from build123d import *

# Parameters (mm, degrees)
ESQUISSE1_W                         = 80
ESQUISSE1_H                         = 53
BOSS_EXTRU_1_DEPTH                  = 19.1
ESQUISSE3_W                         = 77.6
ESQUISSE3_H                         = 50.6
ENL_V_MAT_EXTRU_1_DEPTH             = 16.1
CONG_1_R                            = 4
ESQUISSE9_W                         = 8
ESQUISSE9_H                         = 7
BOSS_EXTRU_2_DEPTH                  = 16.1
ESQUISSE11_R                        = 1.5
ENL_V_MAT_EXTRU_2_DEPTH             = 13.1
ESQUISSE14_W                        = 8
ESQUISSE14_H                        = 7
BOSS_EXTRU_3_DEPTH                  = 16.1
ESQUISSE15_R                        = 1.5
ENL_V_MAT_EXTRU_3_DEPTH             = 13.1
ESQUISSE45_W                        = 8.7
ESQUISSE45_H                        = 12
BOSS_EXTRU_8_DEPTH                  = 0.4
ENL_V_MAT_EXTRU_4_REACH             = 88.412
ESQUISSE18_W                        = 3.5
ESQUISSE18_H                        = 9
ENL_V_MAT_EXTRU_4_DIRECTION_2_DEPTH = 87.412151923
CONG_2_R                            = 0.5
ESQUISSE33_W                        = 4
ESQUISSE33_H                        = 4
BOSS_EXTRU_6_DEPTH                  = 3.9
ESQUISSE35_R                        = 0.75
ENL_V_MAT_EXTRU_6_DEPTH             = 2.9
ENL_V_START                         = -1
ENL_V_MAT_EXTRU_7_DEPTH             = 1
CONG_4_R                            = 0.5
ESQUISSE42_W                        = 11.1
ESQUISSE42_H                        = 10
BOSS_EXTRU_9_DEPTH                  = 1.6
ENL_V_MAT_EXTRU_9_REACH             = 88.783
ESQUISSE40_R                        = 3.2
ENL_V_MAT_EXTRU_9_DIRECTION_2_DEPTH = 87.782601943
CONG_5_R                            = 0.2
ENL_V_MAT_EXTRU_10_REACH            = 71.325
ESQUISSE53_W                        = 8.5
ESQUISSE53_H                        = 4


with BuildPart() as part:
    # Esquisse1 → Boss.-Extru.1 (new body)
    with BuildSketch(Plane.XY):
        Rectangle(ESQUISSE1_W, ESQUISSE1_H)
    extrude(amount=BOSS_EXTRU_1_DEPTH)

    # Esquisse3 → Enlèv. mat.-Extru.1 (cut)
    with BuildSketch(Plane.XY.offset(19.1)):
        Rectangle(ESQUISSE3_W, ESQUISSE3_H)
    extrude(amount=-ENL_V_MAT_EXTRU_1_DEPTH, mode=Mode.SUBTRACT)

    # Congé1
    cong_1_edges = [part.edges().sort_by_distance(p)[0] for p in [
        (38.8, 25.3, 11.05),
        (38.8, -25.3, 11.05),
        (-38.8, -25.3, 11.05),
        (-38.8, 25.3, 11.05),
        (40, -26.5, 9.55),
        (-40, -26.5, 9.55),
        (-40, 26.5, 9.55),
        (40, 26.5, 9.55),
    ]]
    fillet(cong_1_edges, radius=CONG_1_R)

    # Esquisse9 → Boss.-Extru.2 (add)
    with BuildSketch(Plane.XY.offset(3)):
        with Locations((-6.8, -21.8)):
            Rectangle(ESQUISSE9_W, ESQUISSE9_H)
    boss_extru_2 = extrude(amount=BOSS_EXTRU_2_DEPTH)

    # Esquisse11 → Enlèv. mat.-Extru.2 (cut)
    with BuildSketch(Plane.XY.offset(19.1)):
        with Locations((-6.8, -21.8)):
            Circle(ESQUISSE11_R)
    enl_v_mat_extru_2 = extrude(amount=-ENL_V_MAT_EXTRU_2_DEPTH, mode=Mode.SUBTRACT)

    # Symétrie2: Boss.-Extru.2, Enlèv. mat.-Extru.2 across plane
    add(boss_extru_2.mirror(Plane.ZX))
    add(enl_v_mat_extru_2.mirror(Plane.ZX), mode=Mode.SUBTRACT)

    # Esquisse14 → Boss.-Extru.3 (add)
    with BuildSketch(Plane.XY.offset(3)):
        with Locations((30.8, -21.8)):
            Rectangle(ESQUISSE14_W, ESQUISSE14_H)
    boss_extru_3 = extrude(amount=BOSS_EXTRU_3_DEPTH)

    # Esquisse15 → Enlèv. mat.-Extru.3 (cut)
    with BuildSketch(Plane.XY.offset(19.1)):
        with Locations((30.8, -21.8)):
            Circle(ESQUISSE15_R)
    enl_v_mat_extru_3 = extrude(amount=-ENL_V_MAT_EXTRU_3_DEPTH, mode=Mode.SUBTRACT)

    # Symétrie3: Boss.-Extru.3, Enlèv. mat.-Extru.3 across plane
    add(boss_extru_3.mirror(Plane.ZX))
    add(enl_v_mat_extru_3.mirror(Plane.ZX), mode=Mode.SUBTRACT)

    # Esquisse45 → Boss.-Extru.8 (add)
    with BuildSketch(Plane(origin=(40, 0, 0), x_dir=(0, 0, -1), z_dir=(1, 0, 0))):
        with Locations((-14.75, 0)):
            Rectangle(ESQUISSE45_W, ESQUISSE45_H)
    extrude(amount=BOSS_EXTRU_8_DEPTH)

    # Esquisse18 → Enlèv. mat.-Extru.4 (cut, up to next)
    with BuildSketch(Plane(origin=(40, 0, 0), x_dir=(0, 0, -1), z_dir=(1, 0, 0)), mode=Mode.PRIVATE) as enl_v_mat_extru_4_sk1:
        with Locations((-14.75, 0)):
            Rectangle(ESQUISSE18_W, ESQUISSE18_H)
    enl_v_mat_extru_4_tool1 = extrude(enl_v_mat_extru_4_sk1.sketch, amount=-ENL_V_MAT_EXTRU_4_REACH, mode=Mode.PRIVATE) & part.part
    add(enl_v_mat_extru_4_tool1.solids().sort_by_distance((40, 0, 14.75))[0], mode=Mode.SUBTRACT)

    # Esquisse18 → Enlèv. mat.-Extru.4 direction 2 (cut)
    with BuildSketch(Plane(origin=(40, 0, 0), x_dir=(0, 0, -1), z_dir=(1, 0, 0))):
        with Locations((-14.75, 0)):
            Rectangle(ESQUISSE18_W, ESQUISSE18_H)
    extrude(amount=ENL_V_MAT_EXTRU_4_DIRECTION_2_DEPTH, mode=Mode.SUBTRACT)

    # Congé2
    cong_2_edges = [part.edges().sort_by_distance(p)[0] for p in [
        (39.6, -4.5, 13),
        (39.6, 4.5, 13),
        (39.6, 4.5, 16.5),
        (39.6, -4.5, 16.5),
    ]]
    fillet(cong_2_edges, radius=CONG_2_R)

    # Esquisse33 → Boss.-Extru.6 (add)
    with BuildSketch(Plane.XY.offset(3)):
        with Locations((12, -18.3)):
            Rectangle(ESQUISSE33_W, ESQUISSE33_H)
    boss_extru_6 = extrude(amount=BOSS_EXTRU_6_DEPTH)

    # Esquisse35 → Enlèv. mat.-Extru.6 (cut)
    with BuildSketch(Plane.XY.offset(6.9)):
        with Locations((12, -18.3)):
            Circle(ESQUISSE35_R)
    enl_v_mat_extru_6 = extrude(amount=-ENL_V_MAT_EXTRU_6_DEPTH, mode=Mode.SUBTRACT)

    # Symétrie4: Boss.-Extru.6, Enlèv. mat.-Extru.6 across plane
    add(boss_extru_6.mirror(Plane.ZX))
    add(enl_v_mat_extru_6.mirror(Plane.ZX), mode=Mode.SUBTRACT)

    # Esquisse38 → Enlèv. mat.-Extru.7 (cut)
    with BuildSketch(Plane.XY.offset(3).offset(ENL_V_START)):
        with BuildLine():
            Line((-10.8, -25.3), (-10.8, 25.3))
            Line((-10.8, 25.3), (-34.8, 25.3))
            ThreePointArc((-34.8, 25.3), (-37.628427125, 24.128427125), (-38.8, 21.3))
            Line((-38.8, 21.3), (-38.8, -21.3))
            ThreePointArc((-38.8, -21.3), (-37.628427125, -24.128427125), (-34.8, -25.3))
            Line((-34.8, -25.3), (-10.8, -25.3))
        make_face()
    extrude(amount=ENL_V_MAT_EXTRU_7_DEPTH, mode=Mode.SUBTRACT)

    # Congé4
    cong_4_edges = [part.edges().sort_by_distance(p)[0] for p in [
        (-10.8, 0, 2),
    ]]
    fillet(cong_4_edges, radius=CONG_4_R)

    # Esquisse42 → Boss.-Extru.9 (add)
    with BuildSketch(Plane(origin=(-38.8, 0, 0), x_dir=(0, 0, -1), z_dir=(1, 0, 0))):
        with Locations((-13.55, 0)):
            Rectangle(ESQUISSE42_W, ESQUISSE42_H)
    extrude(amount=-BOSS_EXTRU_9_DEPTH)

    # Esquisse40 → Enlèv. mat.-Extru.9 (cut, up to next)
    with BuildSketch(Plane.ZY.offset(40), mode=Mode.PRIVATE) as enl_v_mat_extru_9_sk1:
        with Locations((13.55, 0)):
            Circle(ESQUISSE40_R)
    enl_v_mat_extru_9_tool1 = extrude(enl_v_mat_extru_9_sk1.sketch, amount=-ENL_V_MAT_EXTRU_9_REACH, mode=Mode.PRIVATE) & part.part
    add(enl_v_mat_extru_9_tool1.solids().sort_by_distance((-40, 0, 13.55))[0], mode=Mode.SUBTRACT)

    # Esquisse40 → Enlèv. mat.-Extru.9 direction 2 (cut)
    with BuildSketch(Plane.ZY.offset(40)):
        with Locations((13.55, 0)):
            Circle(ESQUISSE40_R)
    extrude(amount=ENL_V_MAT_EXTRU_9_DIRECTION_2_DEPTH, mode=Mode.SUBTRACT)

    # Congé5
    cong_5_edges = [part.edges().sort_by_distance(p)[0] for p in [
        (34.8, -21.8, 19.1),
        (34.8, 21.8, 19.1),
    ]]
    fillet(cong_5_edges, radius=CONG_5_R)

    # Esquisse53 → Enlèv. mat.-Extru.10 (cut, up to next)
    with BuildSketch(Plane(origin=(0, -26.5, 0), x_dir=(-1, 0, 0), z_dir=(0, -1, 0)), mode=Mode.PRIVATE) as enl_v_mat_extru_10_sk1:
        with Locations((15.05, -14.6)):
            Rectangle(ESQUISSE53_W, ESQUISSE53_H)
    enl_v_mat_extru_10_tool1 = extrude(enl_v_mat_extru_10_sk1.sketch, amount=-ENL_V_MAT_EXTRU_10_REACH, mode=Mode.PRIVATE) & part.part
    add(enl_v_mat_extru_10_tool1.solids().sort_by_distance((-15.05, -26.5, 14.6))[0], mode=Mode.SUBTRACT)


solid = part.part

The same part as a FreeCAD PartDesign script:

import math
import FreeCAD as App
import Part
import Sketcher

V = App.Vector


def edges_at(feature, points):
    """Names of the edges that pass closest to the given points."""
    edges = feature.Shape.Edges
    near = lambda p: min(range(len(edges)), key=lambda i: edges[i].distToShape(Part.Vertex(*p))[0])
    return sorted({f"Edge{near(p) + 1}" for p in points})

doc = App.newDocument("Part")
body = doc.addObject("PartDesign::Body", "Body")

sketch1 = doc.addObject("Sketcher::SketchObject", "Sketch")
body.addObject(sketch1)
sketch1.AttachmentSupport = (doc.XY_Plane, [""])
sketch1.MapMode = "FlatFace"
sketch1.addGeometry([
    Part.LineSegment(V(-40, 26.5, 0), V(-40, -26.5, 0)),
    Part.LineSegment(V(-40, -26.5, 0), V(40, -26.5, 0)),
    Part.LineSegment(V(40, -26.5, 0), V(40, 26.5, 0)),
    Part.LineSegment(V(40, 26.5, 0), V(-40, 26.5, 0)),
], False)
sketch1.addConstraint([
    Sketcher.Constraint("Coincident", 0, 2, 1, 1),
    Sketcher.Constraint("Coincident", 1, 2, 2, 1),
    Sketcher.Constraint("Coincident", 2, 2, 3, 1),
    Sketcher.Constraint("Coincident", 3, 2, 0, 1),
    Sketcher.Constraint("Vertical", 0),
    Sketcher.Constraint("Horizontal", 1),
    Sketcher.Constraint("Vertical", 2),
    Sketcher.Constraint("Horizontal", 3),
    Sketcher.Constraint("Symmetric", 0, 2, 2, 2, -1, 1),
    Sketcher.Constraint("DistanceX", 1, 1, 1, 2, 80.0),
    Sketcher.Constraint("DistanceY", 0, 2, 0, 1, 53.0),
])
pad1 = doc.addObject("PartDesign::Pad", "Pad")
body.addObject(pad1)
pad1.Profile = sketch1
pad1.Length = 19.1

sketch2 = doc.addObject("Sketcher::SketchObject", "Sketch001")
body.addObject(sketch2)
sketch2.AttachmentSupport = (doc.XY_Plane, [""])
sketch2.MapMode = "FlatFace"
sketch2.AttachmentOffset = App.Placement(V(0, 0, 19.1), App.Rotation())
sketch2.addGeometry([
    Part.LineSegment(V(-38.8, 25.3, 0), V(-38.8, -25.3, 0)),
    Part.LineSegment(V(-38.8, -25.3, 0), V(38.8, -25.3, 0)),
    Part.LineSegment(V(38.8, -25.3, 0), V(38.8, 25.3, 0)),
    Part.LineSegment(V(38.8, 25.3, 0), V(-38.8, 25.3, 0)),
], False)
sketch2.addConstraint([
    Sketcher.Constraint("Coincident", 0, 2, 1, 1),
    Sketcher.Constraint("Coincident", 1, 2, 2, 1),
    Sketcher.Constraint("Coincident", 2, 2, 3, 1),
    Sketcher.Constraint("Coincident", 3, 2, 0, 1),
    Sketcher.Constraint("Vertical", 0),
    Sketcher.Constraint("Horizontal", 1),
    Sketcher.Constraint("Vertical", 2),
    Sketcher.Constraint("Horizontal", 3),
    Sketcher.Constraint("Symmetric", 0, 2, 2, 2, -1, 1),
    Sketcher.Constraint("DistanceX", 1, 1, 1, 2, 77.6),
    Sketcher.Constraint("DistanceY", 0, 2, 0, 1, 50.6),
])
pocket1 = doc.addObject("PartDesign::Pocket", "Pocket")
body.addObject(pocket1)
pocket1.Profile = sketch2
pocket1.Length = 16.1
doc.recompute()

fillet = doc.addObject("PartDesign::Fillet", "Fillet")
body.addObject(fillet)
fillet.Base = (pocket1, edges_at(pocket1, [
    (38.8, 25.3, 11.05),
    (38.8, -25.3, 11.05),
    (-38.8, -25.3, 11.05),
    (-38.8, 25.3, 11.05),
    (40, -26.5, 9.55),
    (-40, -26.5, 9.55),
    (-40, 26.5, 9.55),
    (40, 26.5, 9.55),
]))
fillet.Radius = 4

sketch3 = doc.addObject("Sketcher::SketchObject", "Sketch002")
body.addObject(sketch3)
sketch3.AttachmentSupport = (doc.XY_Plane, [""])
sketch3.MapMode = "FlatFace"
sketch3.AttachmentOffset = App.Placement(V(0, 0, 3), App.Rotation())
sketch3.addGeometry([
    Part.LineSegment(V(-10.8, -18.3, 0), V(-10.8, -25.3, 0)),
    Part.LineSegment(V(-10.8, -25.3, 0), V(-2.8, -25.3, 0)),
    Part.LineSegment(V(-2.8, -25.3, 0), V(-2.8, -18.3, 0)),
    Part.LineSegment(V(-2.8, -18.3, 0), V(-10.8, -18.3, 0)),
], False)
sketch3.addConstraint([
    Sketcher.Constraint("Coincident", 0, 2, 1, 1),
    Sketcher.Constraint("Coincident", 1, 2, 2, 1),
    Sketcher.Constraint("Coincident", 2, 2, 3, 1),
    Sketcher.Constraint("Coincident", 3, 2, 0, 1),
    Sketcher.Constraint("Vertical", 0),
    Sketcher.Constraint("Horizontal", 1),
    Sketcher.Constraint("Vertical", 2),
    Sketcher.Constraint("Horizontal", 3),
    Sketcher.Constraint("DistanceX", 1, 1, 1, 2, 8.0),
    Sketcher.Constraint("DistanceY", 0, 2, 0, 1, 7.0),
    Sketcher.Constraint("DistanceX", 0, 2, -1, 1, 10.8),
    Sketcher.Constraint("DistanceY", 0, 2, -1, 1, 25.3),
])
pad2 = doc.addObject("PartDesign::Pad", "Pad001")
body.addObject(pad2)
pad2.Profile = sketch3
pad2.Length = 16.1

sketch4 = doc.addObject("Sketcher::SketchObject", "Sketch003")
body.addObject(sketch4)
sketch4.AttachmentSupport = (doc.XY_Plane, [""])
sketch4.MapMode = "FlatFace"
sketch4.AttachmentOffset = App.Placement(V(0, 0, 19.1), App.Rotation())
sketch4.addGeometry(Part.Circle(V(-6.8, -21.8, 0), V(0, 0, 1), 1.5), False)
sketch4.addConstraint([
    Sketcher.Constraint("Diameter", 0, 3.0),
    Sketcher.Constraint("DistanceX", 0, 3, -1, 1, 6.8),
    Sketcher.Constraint("DistanceY", 0, 3, -1, 1, 21.8),
])
pocket2 = doc.addObject("PartDesign::Pocket", "Pocket001")
body.addObject(pocket2)
pocket2.Profile = sketch4
pocket2.Length = 13.1
doc.recompute()

mirrored = doc.addObject("PartDesign::Mirrored", "Mirrored")
body.addObject(mirrored)
mirrored.Originals = [pad2, pocket2]
mirrored.MirrorPlane = (doc.XZ_Plane, [""])
body.Tip = mirrored

sketch5 = doc.addObject("Sketcher::SketchObject", "Sketch004")
body.addObject(sketch5)
sketch5.AttachmentSupport = (doc.XY_Plane, [""])
sketch5.MapMode = "FlatFace"
sketch5.AttachmentOffset = App.Placement(V(0, 0, 3), App.Rotation())
sketch5.addGeometry([
    Part.LineSegment(V(26.8, -18.3, 0), V(26.8, -25.3, 0)),
    Part.LineSegment(V(26.8, -25.3, 0), V(34.8, -25.3, 0)),
    Part.LineSegment(V(34.8, -25.3, 0), V(34.8, -18.3, 0)),
    Part.LineSegment(V(34.8, -18.3, 0), V(26.8, -18.3, 0)),
], False)
sketch5.addConstraint([
    Sketcher.Constraint("Coincident", 0, 2, 1, 1),
    Sketcher.Constraint("Coincident", 1, 2, 2, 1),
    Sketcher.Constraint("Coincident", 2, 2, 3, 1),
    Sketcher.Constraint("Coincident", 3, 2, 0, 1),
    Sketcher.Constraint("Vertical", 0),
    Sketcher.Constraint("Horizontal", 1),
    Sketcher.Constraint("Vertical", 2),
    Sketcher.Constraint("Horizontal", 3),
    Sketcher.Constraint("DistanceX", 1, 1, 1, 2, 8.0),
    Sketcher.Constraint("DistanceY", 0, 2, 0, 1, 7.0),
    Sketcher.Constraint("DistanceX", -1, 1, 0, 2, 26.8),
    Sketcher.Constraint("DistanceY", 0, 2, -1, 1, 25.3),
])
pad3 = doc.addObject("PartDesign::Pad", "Pad002")
body.addObject(pad3)
pad3.Profile = sketch5
pad3.Length = 16.1

sketch6 = doc.addObject("Sketcher::SketchObject", "Sketch005")
body.addObject(sketch6)
sketch6.AttachmentSupport = (doc.XY_Plane, [""])
sketch6.MapMode = "FlatFace"
sketch6.AttachmentOffset = App.Placement(V(0, 0, 19.1), App.Rotation())
sketch6.addGeometry(Part.Circle(V(30.8, -21.8, 0), V(0, 0, 1), 1.5), False)
sketch6.addConstraint([
    Sketcher.Constraint("Diameter", 0, 3.0),
    Sketcher.Constraint("DistanceX", -1, 1, 0, 3, 30.8),
    Sketcher.Constraint("DistanceY", 0, 3, -1, 1, 21.8),
])
pocket3 = doc.addObject("PartDesign::Pocket", "Pocket002")
body.addObject(pocket3)
pocket3.Profile = sketch6
pocket3.Length = 13.1
doc.recompute()

mirrored2 = doc.addObject("PartDesign::Mirrored", "Mirrored001")
body.addObject(mirrored2)
mirrored2.Originals = [pad3, pocket3]
mirrored2.MirrorPlane = (doc.XZ_Plane, [""])
body.Tip = mirrored2

sketch7 = doc.addObject("Sketcher::SketchObject", "Sketch006")
body.addObject(sketch7)
sketch7.AttachmentSupport = (doc.YZ_Plane, [""])
sketch7.MapMode = "FlatFace"
sketch7.AttachmentOffset = App.Placement(V(0, 0, 40), App.Rotation())
sketch7.addGeometry([
    Part.LineSegment(V(6, 19.1, 0), V(-6, 19.1, 0)),
    Part.LineSegment(V(-6, 19.1, 0), V(-6, 10.4, 0)),
    Part.LineSegment(V(-6, 10.4, 0), V(6, 10.4, 0)),
    Part.LineSegment(V(6, 10.4, 0), V(6, 19.1, 0)),
], False)
sketch7.addConstraint([
    Sketcher.Constraint("Coincident", 0, 2, 1, 1),
    Sketcher.Constraint("Coincident", 1, 2, 2, 1),
    Sketcher.Constraint("Coincident", 2, 2, 3, 1),
    Sketcher.Constraint("Coincident", 3, 2, 0, 1),
    Sketcher.Constraint("Horizontal", 0),
    Sketcher.Constraint("Vertical", 1),
    Sketcher.Constraint("Horizontal", 2),
    Sketcher.Constraint("Vertical", 3),
    Sketcher.Constraint("DistanceX", 0, 2, 0, 1, 12.0),
    Sketcher.Constraint("DistanceY", 1, 2, 1, 1, 8.7),
    Sketcher.Constraint("DistanceX", 0, 2, -1, 1, 6.0),
    Sketcher.Constraint("DistanceY", -1, 1, 0, 2, 19.1),
])
pad4 = doc.addObject("PartDesign::Pad", "Pad003")
body.addObject(pad4)
pad4.Profile = sketch7
pad4.Length = 0.4

sketch8 = doc.addObject("Sketcher::SketchObject", "Sketch007")
body.addObject(sketch8)
sketch8.AttachmentSupport = (doc.YZ_Plane, [""])
sketch8.MapMode = "FlatFace"
sketch8.AttachmentOffset = App.Placement(V(0, 0, 40), App.Rotation())
sketch8.addGeometry([
    Part.LineSegment(V(4.5, 16.5, 0), V(-4.5, 16.5, 0)),
    Part.LineSegment(V(-4.5, 16.5, 0), V(-4.5, 13, 0)),
    Part.LineSegment(V(-4.5, 13, 0), V(4.5, 13, 0)),
    Part.LineSegment(V(4.5, 13, 0), V(4.5, 16.5, 0)),
], False)
sketch8.addConstraint([
    Sketcher.Constraint("Coincident", 0, 2, 1, 1),
    Sketcher.Constraint("Coincident", 1, 2, 2, 1),
    Sketcher.Constraint("Coincident", 2, 2, 3, 1),
    Sketcher.Constraint("Coincident", 3, 2, 0, 1),
    Sketcher.Constraint("Horizontal", 0),
    Sketcher.Constraint("Vertical", 1),
    Sketcher.Constraint("Horizontal", 2),
    Sketcher.Constraint("Vertical", 3),
    Sketcher.Constraint("DistanceX", 0, 2, 0, 1, 9.0),
    Sketcher.Constraint("DistanceY", 1, 2, 1, 1, 3.5),
    Sketcher.Constraint("DistanceY", -1, 1, 1, 2, 13.0),
    Sketcher.Constraint("DistanceX", 0, 2, -1, 1, 4.5),
])
pocket4 = doc.addObject("PartDesign::Pocket", "Pocket003")
body.addObject(pocket4)
pocket4.Profile = sketch8
pocket4.Type = "UpToFirst"

sketch9 = doc.addObject("Sketcher::SketchObject", "Sketch008")
body.addObject(sketch9)
sketch9.AttachmentSupport = (doc.YZ_Plane, [""])
sketch9.MapMode = "FlatFace"
sketch9.AttachmentOffset = App.Placement(V(0, 0, 40), App.Rotation())
sketch9.addGeometry([
    Part.LineSegment(V(4.5, 16.5, 0), V(-4.5, 16.5, 0)),
    Part.LineSegment(V(-4.5, 16.5, 0), V(-4.5, 13, 0)),
    Part.LineSegment(V(-4.5, 13, 0), V(4.5, 13, 0)),
    Part.LineSegment(V(4.5, 13, 0), V(4.5, 16.5, 0)),
], False)
sketch9.addConstraint([
    Sketcher.Constraint("Coincident", 0, 2, 1, 1),
    Sketcher.Constraint("Coincident", 1, 2, 2, 1),
    Sketcher.Constraint("Coincident", 2, 2, 3, 1),
    Sketcher.Constraint("Coincident", 3, 2, 0, 1),
    Sketcher.Constraint("Horizontal", 0),
    Sketcher.Constraint("Vertical", 1),
    Sketcher.Constraint("Horizontal", 2),
    Sketcher.Constraint("Vertical", 3),
    Sketcher.Constraint("DistanceX", 0, 2, 0, 1, 9.0),
    Sketcher.Constraint("DistanceY", 1, 2, 1, 1, 3.5),
    Sketcher.Constraint("DistanceY", -1, 1, 1, 2, 13.0),
    Sketcher.Constraint("DistanceX", 0, 2, -1, 1, 4.5),
])
pocket5 = doc.addObject("PartDesign::Pocket", "Pocket004")
body.addObject(pocket5)
pocket5.Profile = sketch9
pocket5.Length = 87.412152
pocket5.Reversed = True
doc.recompute()

fillet2 = doc.addObject("PartDesign::Fillet", "Fillet001")
body.addObject(fillet2)
fillet2.Base = (pocket5, edges_at(pocket5, [
    (39.6, -4.5, 13),
    (39.6, 4.5, 13),
    (39.6, 4.5, 16.5),
    (39.6, -4.5, 16.5),
]))
fillet2.Radius = 0.5

sketch10 = doc.addObject("Sketcher::SketchObject", "Sketch009")
body.addObject(sketch10)
sketch10.AttachmentSupport = (doc.XY_Plane, [""])
sketch10.MapMode = "FlatFace"
sketch10.AttachmentOffset = App.Placement(V(0, 0, 3), App.Rotation())
sketch10.addGeometry([
    Part.LineSegment(V(10, -16.3, 0), V(10, -20.3, 0)),
    Part.LineSegment(V(10, -20.3, 0), V(14, -20.3, 0)),
    Part.LineSegment(V(14, -20.3, 0), V(14, -16.3, 0)),
    Part.LineSegment(V(14, -16.3, 0), V(10, -16.3, 0)),
], False)
sketch10.addConstraint([
    Sketcher.Constraint("Coincident", 0, 2, 1, 1),
    Sketcher.Constraint("Coincident", 1, 2, 2, 1),
    Sketcher.Constraint("Coincident", 2, 2, 3, 1),
    Sketcher.Constraint("Coincident", 3, 2, 0, 1),
    Sketcher.Constraint("Vertical", 0),
    Sketcher.Constraint("Horizontal", 1),
    Sketcher.Constraint("Vertical", 2),
    Sketcher.Constraint("Horizontal", 3),
    Sketcher.Constraint("Equal", 3, 0),
    Sketcher.Constraint("DistanceX", 1, 1, 1, 2, 4.0),
    Sketcher.Constraint("DistanceX", -1, 1, 0, 2, 10.0),
    Sketcher.Constraint("DistanceY", 0, 2, -1, 1, 20.3),
])
pad5 = doc.addObject("PartDesign::Pad", "Pad004")
body.addObject(pad5)
pad5.Profile = sketch10
pad5.Length = 3.9

sketch11 = doc.addObject("Sketcher::SketchObject", "Sketch010")
body.addObject(sketch11)
sketch11.AttachmentSupport = (doc.XY_Plane, [""])
sketch11.MapMode = "FlatFace"
sketch11.AttachmentOffset = App.Placement(V(0, 0, 6.9), App.Rotation())
sketch11.addGeometry(Part.Circle(V(12, -18.3, 0), V(0, 0, 1), 0.75), False)
sketch11.addConstraint([
    Sketcher.Constraint("Diameter", 0, 1.5),
    Sketcher.Constraint("DistanceX", -1, 1, 0, 3, 12.0),
    Sketcher.Constraint("DistanceY", 0, 3, -1, 1, 18.3),
])
pocket6 = doc.addObject("PartDesign::Pocket", "Pocket005")
body.addObject(pocket6)
pocket6.Profile = sketch11
pocket6.Length = 2.9
doc.recompute()

mirrored3 = doc.addObject("PartDesign::Mirrored", "Mirrored002")
body.addObject(mirrored3)
mirrored3.Originals = [pad5, pocket6]
mirrored3.MirrorPlane = (doc.XZ_Plane, [""])
body.Tip = mirrored3

sketch12 = doc.addObject("Sketcher::SketchObject", "Sketch011")
body.addObject(sketch12)
sketch12.AttachmentSupport = (doc.XY_Plane, [""])
sketch12.MapMode = "FlatFace"
sketch12.AttachmentOffset = App.Placement(V(0, 0, 2), App.Rotation())
sketch12.addGeometry([
    Part.LineSegment(V(-10.8, -25.3, 0), V(-10.8, 25.3, 0)),
    Part.LineSegment(V(-10.8, 25.3, 0), V(-34.8, 25.3, 0)),
    Part.ArcOfCircle(Part.Circle(V(-34.8, 21.3, 0), V(0, 0, 1), 4), math.radians(90), math.radians(180)),
    Part.LineSegment(V(-38.8, 21.3, 0), V(-38.8, -21.3, 0)),
    Part.ArcOfCircle(Part.Circle(V(-34.8, -21.3, 0), V(0, 0, 1), 4), math.radians(180), math.radians(270)),
    Part.LineSegment(V(-34.8, -25.3, 0), V(-10.8, -25.3, 0)),
], False)
sketch12.addConstraint([
    Sketcher.Constraint("Coincident", 0, 2, 1, 1),
    Sketcher.Constraint("Tangent", 1, 2, 2, 1),
    Sketcher.Constraint("Tangent", 2, 2, 3, 1),
    Sketcher.Constraint("Tangent", 3, 2, 4, 1),
    Sketcher.Constraint("Tangent", 4, 2, 5, 1),
    Sketcher.Constraint("Coincident", 5, 2, 0, 1),
    Sketcher.Constraint("Vertical", 0),
    Sketcher.Constraint("Horizontal", 1),
    Sketcher.Constraint("Vertical", 3),
    Sketcher.Constraint("Horizontal", 5),
    Sketcher.Constraint("Equal", 2, 4),
    Sketcher.Constraint("Radius", 2, 4.0),
    Sketcher.Constraint("DistanceX", 1, 2, 1, 1, 24.0),
    Sketcher.Constraint("DistanceY", 0, 1, 0, 2, 50.6),
    Sketcher.Constraint("DistanceX", 2, 3, -1, 1, 34.8),
    Sketcher.Constraint("DistanceY", -1, 1, 2, 3, 21.3),
])
pocket7 = doc.addObject("PartDesign::Pocket", "Pocket006")
body.addObject(pocket7)
pocket7.Profile = sketch12
pocket7.Length = 1
pocket7.Reversed = True
doc.recompute()

fillet3 = doc.addObject("PartDesign::Fillet", "Fillet002")
body.addObject(fillet3)
fillet3.Base = (pocket7, edges_at(pocket7, [(-10.8, 0, 2)]))
fillet3.Radius = 0.5

sketch13 = doc.addObject("Sketcher::SketchObject", "Sketch012")
body.addObject(sketch13)
sketch13.AttachmentSupport = (doc.YZ_Plane, [""])
sketch13.MapMode = "FlatFace"
sketch13.AttachmentOffset = App.Placement(V(0, 0, -38.8), App.Rotation())
sketch13.addGeometry([
    Part.LineSegment(V(5, 19.1, 0), V(-5, 19.1, 0)),
    Part.LineSegment(V(-5, 19.1, 0), V(-5, 8, 0)),
    Part.LineSegment(V(-5, 8, 0), V(5, 8, 0)),
    Part.LineSegment(V(5, 8, 0), V(5, 19.1, 0)),
], False)
sketch13.addConstraint([
    Sketcher.Constraint("Coincident", 0, 2, 1, 1),
    Sketcher.Constraint("Coincident", 1, 2, 2, 1),
    Sketcher.Constraint("Coincident", 2, 2, 3, 1),
    Sketcher.Constraint("Coincident", 3, 2, 0, 1),
    Sketcher.Constraint("Horizontal", 0),
    Sketcher.Constraint("Vertical", 1),
    Sketcher.Constraint("Horizontal", 2),
    Sketcher.Constraint("Vertical", 3),
    Sketcher.Constraint("DistanceX", 0, 2, 0, 1, 10.0),
    Sketcher.Constraint("DistanceY", 1, 2, 1, 1, 11.1),
    Sketcher.Constraint("DistanceX", 0, 2, -1, 1, 5.0),
    Sketcher.Constraint("DistanceY", -1, 1, 1, 2, 8.0),
])
pad6 = doc.addObject("PartDesign::Pad", "Pad005")
body.addObject(pad6)
pad6.Profile = sketch13
pad6.Length = 1.6
pad6.Reversed = True

sketch14 = doc.addObject("Sketcher::SketchObject", "Sketch013")
body.addObject(sketch14)
sketch14.AttachmentSupport = (doc.YZ_Plane, [""])
sketch14.MapMode = "FlatFace"
sketch14.AttachmentOffset = App.Placement(V(0, 0, -40), App.Rotation())
sketch14.addGeometry(Part.Circle(V(0, 13.55, 0), V(0, 0, 1), 3.2), False)
sketch14.addConstraint([
    Sketcher.Constraint("PointOnObject", 0, 3, -2),
    Sketcher.Constraint("Diameter", 0, 6.4),
    Sketcher.Constraint("DistanceY", -1, 1, 0, 3, 13.55),
])
pocket8 = doc.addObject("PartDesign::Pocket", "Pocket007")
body.addObject(pocket8)
pocket8.Profile = sketch14
pocket8.Type = "UpToFirst"
pocket8.Reversed = True

sketch15 = doc.addObject("Sketcher::SketchObject", "Sketch014")
body.addObject(sketch15)
sketch15.AttachmentSupport = (doc.YZ_Plane, [""])
sketch15.MapMode = "FlatFace"
sketch15.AttachmentOffset = App.Placement(V(0, 0, -40), App.Rotation())
sketch15.addGeometry(Part.Circle(V(0, 13.55, 0), V(0, 0, 1), 3.2), False)
sketch15.addConstraint([
    Sketcher.Constraint("PointOnObject", 0, 3, -2),
    Sketcher.Constraint("Diameter", 0, 6.4),
    Sketcher.Constraint("DistanceY", -1, 1, 0, 3, 13.55),
])
pocket9 = doc.addObject("PartDesign::Pocket", "Pocket008")
body.addObject(pocket9)
pocket9.Profile = sketch15
pocket9.Length = 87.782602
doc.recompute()

fillet4 = doc.addObject("PartDesign::Fillet", "Fillet003")
body.addObject(fillet4)
fillet4.Base = (pocket9, edges_at(pocket9, [(34.8, -21.8, 19.1), (34.8, 21.8, 19.1)]))
fillet4.Radius = 0.2

sketch16 = doc.addObject("Sketcher::SketchObject", "Sketch015")
body.addObject(sketch16)
sketch16.AttachmentSupport = (doc.XZ_Plane, [""])
sketch16.MapMode = "FlatFace"
sketch16.AttachmentOffset = App.Placement(V(0, 0, 26.5), App.Rotation())
sketch16.addGeometry([
    Part.LineSegment(V(-10.8, 12.6, 0), V(-10.8, 16.6, 0)),
    Part.LineSegment(V(-10.8, 16.6, 0), V(-19.3, 16.6, 0)),
    Part.LineSegment(V(-19.3, 16.6, 0), V(-19.3, 12.6, 0)),
    Part.LineSegment(V(-19.3, 12.6, 0), V(-10.8, 12.6, 0)),
], False)
sketch16.addConstraint([
    Sketcher.Constraint("Coincident", 0, 2, 1, 1),
    Sketcher.Constraint("Coincident", 1, 2, 2, 1),
    Sketcher.Constraint("Coincident", 2, 2, 3, 1),
    Sketcher.Constraint("Coincident", 3, 2, 0, 1),
    Sketcher.Constraint("Vertical", 0),
    Sketcher.Constraint("Horizontal", 1),
    Sketcher.Constraint("Vertical", 2),
    Sketcher.Constraint("Horizontal", 3),
    Sketcher.Constraint("DistanceY", 0, 1, 0, 2, 4.0),
    Sketcher.Constraint("DistanceX", 1, 2, 1, 1, 8.5),
    Sketcher.Constraint("DistanceX", 0, 2, -1, 1, 10.8),
    Sketcher.Constraint("DistanceY", -1, 1, 0, 2, 16.6),
])
pocket10 = doc.addObject("PartDesign::Pocket", "Pocket009")
body.addObject(pocket10)
pocket10.Profile = sketch16
pocket10.Type = "UpToFirst"

doc.recompute()
